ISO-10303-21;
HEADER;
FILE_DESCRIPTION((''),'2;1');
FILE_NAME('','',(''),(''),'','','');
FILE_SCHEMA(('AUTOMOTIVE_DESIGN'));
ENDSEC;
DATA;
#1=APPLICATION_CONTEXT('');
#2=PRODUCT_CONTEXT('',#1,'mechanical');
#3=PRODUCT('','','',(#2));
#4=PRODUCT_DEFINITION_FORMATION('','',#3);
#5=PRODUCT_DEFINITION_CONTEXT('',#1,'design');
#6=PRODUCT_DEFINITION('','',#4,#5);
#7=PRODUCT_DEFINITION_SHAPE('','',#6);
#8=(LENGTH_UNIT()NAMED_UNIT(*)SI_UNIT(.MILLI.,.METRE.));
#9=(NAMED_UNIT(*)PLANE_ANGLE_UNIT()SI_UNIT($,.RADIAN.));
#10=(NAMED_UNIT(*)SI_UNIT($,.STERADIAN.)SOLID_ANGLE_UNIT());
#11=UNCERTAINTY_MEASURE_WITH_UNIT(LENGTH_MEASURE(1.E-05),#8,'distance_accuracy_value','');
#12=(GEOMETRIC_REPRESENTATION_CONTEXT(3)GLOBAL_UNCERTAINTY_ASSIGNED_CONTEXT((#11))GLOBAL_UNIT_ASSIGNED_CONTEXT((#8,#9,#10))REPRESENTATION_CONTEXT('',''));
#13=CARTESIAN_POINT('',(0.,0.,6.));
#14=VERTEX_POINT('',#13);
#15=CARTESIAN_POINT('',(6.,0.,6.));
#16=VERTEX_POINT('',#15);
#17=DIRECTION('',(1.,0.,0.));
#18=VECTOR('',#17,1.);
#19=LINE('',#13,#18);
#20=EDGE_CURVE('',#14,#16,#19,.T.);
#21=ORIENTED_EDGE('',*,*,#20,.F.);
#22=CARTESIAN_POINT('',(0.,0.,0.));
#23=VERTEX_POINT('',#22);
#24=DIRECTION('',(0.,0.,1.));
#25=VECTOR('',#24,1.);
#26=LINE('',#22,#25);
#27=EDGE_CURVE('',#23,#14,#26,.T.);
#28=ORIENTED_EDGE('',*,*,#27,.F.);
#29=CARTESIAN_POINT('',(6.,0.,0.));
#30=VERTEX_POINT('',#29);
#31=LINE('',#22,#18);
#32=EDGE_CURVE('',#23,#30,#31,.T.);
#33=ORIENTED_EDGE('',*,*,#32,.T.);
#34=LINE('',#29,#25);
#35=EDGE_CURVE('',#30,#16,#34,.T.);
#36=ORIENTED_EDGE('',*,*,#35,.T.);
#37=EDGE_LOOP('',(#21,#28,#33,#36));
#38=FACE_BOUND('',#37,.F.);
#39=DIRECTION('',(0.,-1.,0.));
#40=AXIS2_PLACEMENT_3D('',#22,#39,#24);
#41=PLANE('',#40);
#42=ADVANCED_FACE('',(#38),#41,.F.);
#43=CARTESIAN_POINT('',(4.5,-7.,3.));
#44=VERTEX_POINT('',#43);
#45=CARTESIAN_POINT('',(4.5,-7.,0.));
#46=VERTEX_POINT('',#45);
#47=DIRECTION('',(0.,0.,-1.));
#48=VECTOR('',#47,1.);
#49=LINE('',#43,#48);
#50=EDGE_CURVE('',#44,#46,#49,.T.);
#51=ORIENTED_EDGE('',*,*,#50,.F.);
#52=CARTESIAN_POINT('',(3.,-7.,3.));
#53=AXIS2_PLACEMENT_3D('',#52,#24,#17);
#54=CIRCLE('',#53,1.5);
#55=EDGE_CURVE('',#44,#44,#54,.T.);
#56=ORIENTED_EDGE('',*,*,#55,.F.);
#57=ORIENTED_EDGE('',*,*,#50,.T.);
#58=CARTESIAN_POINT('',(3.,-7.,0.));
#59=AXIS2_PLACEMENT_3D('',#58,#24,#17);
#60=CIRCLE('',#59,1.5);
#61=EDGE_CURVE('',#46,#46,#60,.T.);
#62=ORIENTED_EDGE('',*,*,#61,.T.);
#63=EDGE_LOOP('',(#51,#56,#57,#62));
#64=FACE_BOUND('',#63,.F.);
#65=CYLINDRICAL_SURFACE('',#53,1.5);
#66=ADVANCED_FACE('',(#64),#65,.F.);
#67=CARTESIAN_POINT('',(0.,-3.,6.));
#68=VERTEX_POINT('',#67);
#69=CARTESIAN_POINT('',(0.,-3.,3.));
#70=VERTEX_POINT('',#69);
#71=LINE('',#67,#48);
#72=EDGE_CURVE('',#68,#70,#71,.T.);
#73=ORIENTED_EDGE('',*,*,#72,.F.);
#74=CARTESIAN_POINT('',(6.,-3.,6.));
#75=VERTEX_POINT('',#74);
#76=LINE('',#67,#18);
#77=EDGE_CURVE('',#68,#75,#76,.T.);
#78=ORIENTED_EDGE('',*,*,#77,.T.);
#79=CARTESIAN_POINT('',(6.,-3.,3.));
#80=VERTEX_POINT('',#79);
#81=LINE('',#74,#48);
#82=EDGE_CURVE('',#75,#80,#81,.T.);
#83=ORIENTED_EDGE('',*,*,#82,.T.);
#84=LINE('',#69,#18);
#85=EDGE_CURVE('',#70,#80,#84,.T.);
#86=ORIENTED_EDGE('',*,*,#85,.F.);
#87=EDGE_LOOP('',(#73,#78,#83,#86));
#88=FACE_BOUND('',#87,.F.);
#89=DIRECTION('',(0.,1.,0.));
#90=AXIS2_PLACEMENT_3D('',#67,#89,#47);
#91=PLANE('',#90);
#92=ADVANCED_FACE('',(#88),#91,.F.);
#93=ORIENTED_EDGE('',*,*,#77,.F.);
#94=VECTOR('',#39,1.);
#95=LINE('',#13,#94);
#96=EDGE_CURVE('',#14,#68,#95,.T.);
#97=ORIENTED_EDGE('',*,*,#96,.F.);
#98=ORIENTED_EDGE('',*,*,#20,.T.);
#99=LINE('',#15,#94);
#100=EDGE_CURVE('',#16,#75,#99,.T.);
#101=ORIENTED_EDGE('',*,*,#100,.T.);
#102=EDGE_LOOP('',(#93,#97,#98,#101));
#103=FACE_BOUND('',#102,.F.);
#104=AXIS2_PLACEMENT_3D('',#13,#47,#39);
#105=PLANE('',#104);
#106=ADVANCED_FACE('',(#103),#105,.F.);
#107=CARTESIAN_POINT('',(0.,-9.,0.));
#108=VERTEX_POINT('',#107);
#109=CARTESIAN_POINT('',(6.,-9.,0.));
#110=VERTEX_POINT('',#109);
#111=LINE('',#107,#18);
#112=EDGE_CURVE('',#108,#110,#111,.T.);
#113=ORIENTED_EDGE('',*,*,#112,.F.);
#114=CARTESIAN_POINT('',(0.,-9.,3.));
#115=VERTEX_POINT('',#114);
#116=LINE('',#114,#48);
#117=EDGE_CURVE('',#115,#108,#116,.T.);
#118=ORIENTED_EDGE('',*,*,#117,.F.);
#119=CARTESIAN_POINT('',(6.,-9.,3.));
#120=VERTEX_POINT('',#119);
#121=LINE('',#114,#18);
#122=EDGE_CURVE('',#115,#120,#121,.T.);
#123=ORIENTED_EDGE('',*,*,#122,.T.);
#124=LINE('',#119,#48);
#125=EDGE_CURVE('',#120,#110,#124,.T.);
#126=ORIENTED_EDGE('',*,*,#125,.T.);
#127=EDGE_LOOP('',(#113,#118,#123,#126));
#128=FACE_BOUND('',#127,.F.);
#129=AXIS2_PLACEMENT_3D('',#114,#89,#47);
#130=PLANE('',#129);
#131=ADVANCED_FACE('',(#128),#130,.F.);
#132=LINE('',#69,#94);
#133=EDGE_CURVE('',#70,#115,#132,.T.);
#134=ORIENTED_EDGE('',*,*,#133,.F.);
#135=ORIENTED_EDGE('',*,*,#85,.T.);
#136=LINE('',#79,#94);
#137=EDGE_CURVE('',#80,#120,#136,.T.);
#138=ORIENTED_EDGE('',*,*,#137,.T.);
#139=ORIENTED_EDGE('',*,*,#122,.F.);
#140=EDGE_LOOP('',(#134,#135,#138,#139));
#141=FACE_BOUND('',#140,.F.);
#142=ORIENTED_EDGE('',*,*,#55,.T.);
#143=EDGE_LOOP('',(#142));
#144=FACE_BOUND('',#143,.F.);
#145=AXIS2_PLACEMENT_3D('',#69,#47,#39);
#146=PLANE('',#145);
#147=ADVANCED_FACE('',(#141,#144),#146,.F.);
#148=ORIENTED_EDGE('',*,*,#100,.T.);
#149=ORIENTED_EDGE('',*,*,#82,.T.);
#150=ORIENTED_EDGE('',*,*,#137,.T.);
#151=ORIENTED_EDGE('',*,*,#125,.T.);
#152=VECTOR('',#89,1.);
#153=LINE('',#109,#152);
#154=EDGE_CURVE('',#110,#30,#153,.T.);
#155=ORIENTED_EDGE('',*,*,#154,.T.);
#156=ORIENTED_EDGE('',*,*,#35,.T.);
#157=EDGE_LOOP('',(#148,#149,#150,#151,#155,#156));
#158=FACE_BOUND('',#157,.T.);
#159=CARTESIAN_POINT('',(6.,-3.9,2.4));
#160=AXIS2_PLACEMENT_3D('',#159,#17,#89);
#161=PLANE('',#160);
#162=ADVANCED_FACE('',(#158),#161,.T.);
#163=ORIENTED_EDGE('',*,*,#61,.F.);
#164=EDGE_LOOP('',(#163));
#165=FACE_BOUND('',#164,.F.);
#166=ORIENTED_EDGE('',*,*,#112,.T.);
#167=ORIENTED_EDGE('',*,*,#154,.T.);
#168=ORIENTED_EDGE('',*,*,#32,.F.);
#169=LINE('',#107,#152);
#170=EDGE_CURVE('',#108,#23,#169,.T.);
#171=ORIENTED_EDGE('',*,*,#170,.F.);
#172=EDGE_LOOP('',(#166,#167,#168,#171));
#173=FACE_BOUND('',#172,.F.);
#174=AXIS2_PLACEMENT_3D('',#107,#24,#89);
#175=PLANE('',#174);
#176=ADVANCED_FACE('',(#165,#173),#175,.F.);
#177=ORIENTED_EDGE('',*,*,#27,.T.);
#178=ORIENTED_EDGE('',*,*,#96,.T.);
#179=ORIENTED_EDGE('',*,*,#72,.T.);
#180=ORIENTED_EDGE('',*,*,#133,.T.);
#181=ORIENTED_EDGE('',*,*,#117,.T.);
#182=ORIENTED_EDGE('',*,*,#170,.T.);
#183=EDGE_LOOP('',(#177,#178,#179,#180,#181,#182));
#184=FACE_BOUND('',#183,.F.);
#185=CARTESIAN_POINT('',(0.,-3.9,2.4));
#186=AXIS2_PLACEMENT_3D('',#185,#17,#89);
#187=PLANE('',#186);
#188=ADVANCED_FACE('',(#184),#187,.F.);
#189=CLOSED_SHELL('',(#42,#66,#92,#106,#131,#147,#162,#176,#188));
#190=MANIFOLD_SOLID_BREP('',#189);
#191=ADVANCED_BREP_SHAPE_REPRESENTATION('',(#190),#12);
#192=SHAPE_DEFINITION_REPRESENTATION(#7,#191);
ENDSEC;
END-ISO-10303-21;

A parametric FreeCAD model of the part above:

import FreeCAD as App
import Part
import Sketcher
Q = App.Units.Quantity


def add_polygon(sketch, points):
    """Adds a closed chain of lines whose ends are joined by coincident constraints."""
    first, n = sketch.GeometryCount, len(points)
    for a, b in zip(points, points[1:] + points[:1]):
        sketch.addGeometry(Part.LineSegment(App.Vector(*a, 0), App.Vector(*b, 0)), False)
    for i in range(n):
        sketch.addConstraint(Sketcher.Constraint("Coincident", first + i, 2, first + (i + 1) % n, 1))

doc = App.newDocument("Part")
body = doc.addObject("PartDesign::Body", "Body")

sketch1 = body.newObject("Sketcher::SketchObject", "Sketch")
sketch1.AttachmentSupport = (doc.getObject("YZ_Plane"), [""])
sketch1.MapMode = "FlatFace"
add_polygon(sketch1, [(-9, 0), (0, 0), (0, 6), (-3, 6), (-3, 3), (-9, 3)])
sketch1.addConstraint([
    Sketcher.Constraint("Horizontal", 0),
    Sketcher.Constraint("Vertical", 1),
    Sketcher.Constraint("Horizontal", 2),
    Sketcher.Constraint("Vertical", 3),
    Sketcher.Constraint("Horizontal", 4),
    Sketcher.Constraint("Vertical", 5),
    Sketcher.Constraint("Coincident", 0, 2, -1, 1),
    Sketcher.Constraint("Equal", 4, 1),
    Sketcher.Constraint("Equal", 2, 3),
    Sketcher.Constraint("Equal", 3, 5),
    Sketcher.Constraint("DistanceX", 0, 1, 0, 2, Q("9 mm")),
])
pad1 = body.newObject("PartDesign::Pad", "Pad")
pad1.Profile = sketch1
pad1.Length = 6

sketch2 = body.newObject("Sketcher::SketchObject", "Sketch001")
sketch2.AttachmentSupport = (doc.getObject("XY_Plane"), [""])
sketch2.MapMode = "FlatFace"
sketch2.AttachmentOffset = App.Placement(App.Vector(0, 0, 3), App.Rotation())
sketch2.addGeometry(Part.Circle(App.Vector(3, -7, 0), App.Vector(0, 0, 1), 1.5), False)
sketch2.addConstraint([
    Sketcher.Constraint("Diameter", 0, Q("3 mm")),
    Sketcher.Constraint("DistanceX", -1, 1, 0, 3, Q("3 mm")),
    Sketcher.Constraint("DistanceY", 0, 3, -1, 1, Q("7 mm")),
])
pocket1 = body.newObject("PartDesign::Pocket", "Pocket")
pocket1.Profile = sketch2
pocket1.Length = 25

doc.recompute()
